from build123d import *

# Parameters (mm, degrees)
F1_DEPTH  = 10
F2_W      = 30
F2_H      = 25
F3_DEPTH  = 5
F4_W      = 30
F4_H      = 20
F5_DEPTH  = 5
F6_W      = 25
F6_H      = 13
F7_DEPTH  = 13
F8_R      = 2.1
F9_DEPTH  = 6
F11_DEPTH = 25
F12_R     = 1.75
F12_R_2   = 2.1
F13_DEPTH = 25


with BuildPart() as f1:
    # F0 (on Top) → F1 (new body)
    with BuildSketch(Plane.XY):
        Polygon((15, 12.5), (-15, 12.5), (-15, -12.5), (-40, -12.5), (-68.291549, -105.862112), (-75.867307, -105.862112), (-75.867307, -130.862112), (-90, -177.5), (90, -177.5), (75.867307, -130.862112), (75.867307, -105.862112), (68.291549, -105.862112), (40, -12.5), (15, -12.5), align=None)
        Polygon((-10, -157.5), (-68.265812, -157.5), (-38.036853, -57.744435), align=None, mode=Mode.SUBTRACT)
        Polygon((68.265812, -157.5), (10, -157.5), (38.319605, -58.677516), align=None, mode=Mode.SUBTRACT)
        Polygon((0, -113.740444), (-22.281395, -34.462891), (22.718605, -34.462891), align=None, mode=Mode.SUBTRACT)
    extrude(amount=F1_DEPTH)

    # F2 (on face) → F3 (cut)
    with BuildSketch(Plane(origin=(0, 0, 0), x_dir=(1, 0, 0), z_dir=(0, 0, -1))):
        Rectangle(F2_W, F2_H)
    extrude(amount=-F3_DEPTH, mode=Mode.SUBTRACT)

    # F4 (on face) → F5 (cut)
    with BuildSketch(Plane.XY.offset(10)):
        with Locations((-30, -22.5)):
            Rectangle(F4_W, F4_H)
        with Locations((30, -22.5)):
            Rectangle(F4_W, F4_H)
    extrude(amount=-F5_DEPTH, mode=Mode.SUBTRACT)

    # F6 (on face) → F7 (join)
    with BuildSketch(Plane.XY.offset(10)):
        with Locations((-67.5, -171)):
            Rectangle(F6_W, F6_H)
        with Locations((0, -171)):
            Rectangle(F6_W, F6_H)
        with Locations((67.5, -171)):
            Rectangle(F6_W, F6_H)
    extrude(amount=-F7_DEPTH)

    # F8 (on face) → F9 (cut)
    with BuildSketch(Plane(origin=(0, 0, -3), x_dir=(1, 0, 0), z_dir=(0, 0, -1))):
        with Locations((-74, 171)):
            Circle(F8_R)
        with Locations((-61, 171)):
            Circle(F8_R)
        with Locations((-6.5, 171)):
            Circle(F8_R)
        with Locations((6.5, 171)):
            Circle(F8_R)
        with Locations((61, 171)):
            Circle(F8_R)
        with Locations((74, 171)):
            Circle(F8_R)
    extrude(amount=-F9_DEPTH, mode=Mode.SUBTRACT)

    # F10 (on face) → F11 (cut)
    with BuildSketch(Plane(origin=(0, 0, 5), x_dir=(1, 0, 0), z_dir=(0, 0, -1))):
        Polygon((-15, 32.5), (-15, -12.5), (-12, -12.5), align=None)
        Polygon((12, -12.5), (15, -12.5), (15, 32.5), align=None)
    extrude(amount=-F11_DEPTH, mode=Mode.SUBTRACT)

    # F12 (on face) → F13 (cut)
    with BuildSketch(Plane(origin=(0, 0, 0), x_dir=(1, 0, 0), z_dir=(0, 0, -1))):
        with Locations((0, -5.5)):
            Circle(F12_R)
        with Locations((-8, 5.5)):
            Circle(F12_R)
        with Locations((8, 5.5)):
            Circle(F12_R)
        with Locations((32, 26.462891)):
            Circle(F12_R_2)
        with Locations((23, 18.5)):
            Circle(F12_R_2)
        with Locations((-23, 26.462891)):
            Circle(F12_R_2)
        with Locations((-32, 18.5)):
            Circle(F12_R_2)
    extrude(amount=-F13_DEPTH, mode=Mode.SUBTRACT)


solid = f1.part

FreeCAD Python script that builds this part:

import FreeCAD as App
import Part
import Sketcher

doc = App.newDocument("Part")
body = doc.addObject("PartDesign::Body", "Body")

sketch1 = body.newObject("Sketcher::SketchObject", "Sketch")
sketch1.AttachmentSupport = (doc.getObject("XY_Plane"), [""])
sketch1.MapMode = "FlatFace"
sketch1.addGeometry(Part.LineSegment(App.Vector(15, 12.5, 0), App.Vector(-15, 12.5, 0)), False)
sketch1.addGeometry(Part.LineSegment(App.Vector(-15, 12.5, 0), App.Vector(-15, -12.5, 0)), False)
sketch1.addGeometry(Part.LineSegment(App.Vector(-15, -12.5, 0), App.Vector(-40, -12.5, 0)), False)
sketch1.addGeometry(Part.LineSegment(App.Vector(-40, -12.5, 0), App.Vector(-68.291549, -105.862112, 0)), False)
sketch1.addGeometry(Part.LineSegment(App.Vector(-68.291549, -105.862112, 0), App.Vector(-75.867307, -105.862112, 0)), False)
sketch1.addGeometry(Part.LineSegment(App.Vector(-75.867307, -105.862112, 0), App.Vector(-75.867307, -130.862112, 0)), False)
sketch1.addGeometry(Part.LineSegment(App.Vector(-75.867307, -130.862112, 0), App.Vector(-90, -177.5, 0)), False)
sketch1.addGeometry(Part.LineSegment(App.Vector(-90, -177.5, 0), App.Vector(90, -177.5, 0)), False)
sketch1.addGeometry(Part.LineSegment(App.Vector(90, -177.5, 0), App.Vector(75.867307, -130.862112, 0)), False)
sketch1.addGeometry(Part.LineSegment(App.Vector(75.867307, -130.862112, 0), App.Vector(75.867307, -105.862112, 0)), False)
sketch1.addGeometry(Part.LineSegment(App.Vector(75.867307, -105.862112, 0), App.Vector(68.291549, -105.862112, 0)), False)
sketch1.addGeometry(Part.LineSegment(App.Vector(68.291549, -105.862112, 0), App.Vector(40, -12.5, 0)), False)
sketch1.addGeometry(Part.LineSegment(App.Vector(40, -12.5, 0), App.Vector(15, -12.5, 0)), False)
sketch1.addGeometry(Part.LineSegment(App.Vector(15, -12.5, 0), App.Vector(15, 12.5, 0)), False)
sketch1.addGeometry(Part.LineSegment(App.Vector(-38.036853, -57.744435, 0), App.Vector(-10, -157.5, 0)), False)
sketch1.addGeometry(Part.LineSegment(App.Vector(-10, -157.5, 0), App.Vector(-68.265812, -157.5, 0)), False)
sketch1.addGeometry(Part.LineSegment(App.Vector(-68.265812, -157.5, 0), App.Vector(-38.036853, -57.744435, 0)), False)
sketch1.addGeometry(Part.LineSegment(App.Vector(38.319605, -58.677516, 0), App.Vector(68.265812, -157.5, 0)), False)
sketch1.addGeometry(Part.LineSegment(App.Vector(68.265812, -157.5, 0), App.Vector(10, -157.5, 0)), False)
sketch1.addGeometry(Part.LineSegment(App.Vector(10, -157.5, 0), App.Vector(38.319605, -58.677516, 0)), False)
sketch1.addGeometry(Part.LineSegment(App.Vector(22.718605, -34.462891, 0), App.Vector(0, -113.740444, 0)), False)
sketch1.addGeometry(Part.LineSegment(App.Vector(0, -113.740444, 0), App.Vector(-22.281395, -34.462891, 0)), False)
sketch1.addGeometry(Part.LineSegment(App.Vector(-22.281395, -34.462891, 0), App.Vector(22.718605, -34.462891, 0)), False)
sketch1.addConstraint(Sketcher.Constraint("Coincident", 0, 2, 1, 1))
sketch1.addConstraint(Sketcher.Constraint("Coincident", 1, 2, 2, 1))
sketch1.addConstraint(Sketcher.Constraint("Coincident", 2, 2, 3, 1))
sketch1.addConstraint(Sketcher.Constraint("Coincident", 3, 2, 4, 1))
sketch1.addConstraint(Sketcher.Constraint("Coincident", 4, 2, 5, 1))
sketch1.addConstraint(Sketcher.Constraint("Coincident", 5, 2, 6, 1))
sketch1.addConstraint(Sketcher.Constraint("Coincident", 6, 2, 7, 1))
sketch1.addConstraint(Sketcher.Constraint("Coincident", 7, 2, 8, 1))
sketch1.addConstraint(Sketcher.Constraint("Coincident", 8, 2, 9, 1))
sketch1.addConstraint(Sketcher.Constraint("Coincident", 9, 2, 10, 1))
sketch1.addConstraint(Sketcher.Constraint("Coincident", 10, 2, 11, 1))
sketch1.addConstraint(Sketcher.Constraint("Coincident", 11, 2, 12, 1))
sketch1.addConstraint(Sketcher.Constraint("Coincident", 12, 2, 13, 1))
sketch1.addConstraint(Sketcher.Constraint("Coincident", 13, 2, 0, 1))
sketch1.addConstraint(Sketcher.Constraint("Coincident", 14, 2, 15, 1))
sketch1.addConstraint(Sketcher.Constraint("Coincident", 15, 2, 16, 1))
sketch1.addConstraint(Sketcher.Constraint("Coincident", 16, 2, 14, 1))
sketch1.addConstraint(Sketcher.Constraint("Coincident", 17, 2, 18, 1))
sketch1.addConstraint(Sketcher.Constraint("Coincident", 18, 2, 19, 1))
sketch1.addConstraint(Sketcher.Constraint("Coincident", 19, 2, 17, 1))
sketch1.addConstraint(Sketcher.Constraint("Coincident", 20, 2, 21, 1))
sketch1.addConstraint(Sketcher.Constraint("Coincident", 21, 2, 22, 1))
sketch1.addConstraint(Sketcher.Constraint("Coincident", 22, 2, 20, 1))
sketch1.addConstraint(Sketcher.Constraint("Horizontal", 0))
sketch1.addConstraint(Sketcher.Constraint("Vertical", 1))
sketch1.addConstraint(Sketcher.Constraint("Horizontal", 2))
sketch1.addConstraint(Sketcher.Constraint("Horizontal", 4))
sketch1.addConstraint(Sketcher.Constraint("Vertical", 5))
sketch1.addConstraint(Sketcher.Constraint("Horizontal", 7))
sketch1.addConstraint(Sketcher.Constraint("Vertical", 9))
sketch1.addConstraint(Sketcher.Constraint("Horizontal", 10))
sketch1.addConstraint(Sketcher.Constraint("Horizontal", 12))
sketch1.addConstraint(Sketcher.Constraint("Vertical", 13))
sketch1.addConstraint(Sketcher.Constraint("Horizontal", 15))
sketch1.addConstraint(Sketcher.Constraint("Horizontal", 18))
sketch1.addConstraint(Sketcher.Constraint("Horizontal", 22))
sketch1.addConstraint(Sketcher.Constraint("Symmetric", 0, 2, 12, 2, -1, 1))
sketch1.addConstraint(Sketcher.Constraint("Symmetric", 5, 2, 8, 2, -2))
sketch1.addConstraint(Sketcher.Constraint("Symmetric", 3, 2, 10, 2, -2))
sketch1.addConstraint(Sketcher.Constraint("Symmetric", 2, 2, 11, 2, -2))
sketch1.addConstraint(Sketcher.Constraint("Symmetric", 15, 2, 17, 2, -2))
sketch1.addConstraint(Sketcher.Constraint("PointOnObject", 20, 2, -2))
sketch1.addConstraint(Sketcher.Constraint("Parallel", 3, 6))
sketch1.addConstraint(Sketcher.Constraint("Parallel", 8, 11))
sketch1.addConstraint(Sketcher.Constraint("Parallel", 6, 16))
sketch1.addConstraint(Sketcher.Constraint("Parallel", 11, 17))
sketch1.addConstraint(Sketcher.Constraint("Parallel", 19, 20))
sketch1.addConstraint(Sketcher.Constraint("Parallel", 14, 21))
sketch1.addConstraint(Sketcher.Constraint("Equal", 15, 18))
sketch1.addConstraint(Sketcher.Constraint("Equal", 12, 1))
sketch1.addConstraint(Sketcher.Constraint("Equal", 1, 5))
sketch1.addConstraint(Sketcher.Constraint("DistanceX", 0, 2, 0, 1, 30.0))
sketch1.addConstraint(Sketcher.Constraint("DistanceX", 2, 2, 2, 1, 25.0))
sketch1.addConstraint(Sketcher.Constraint("DistanceX", 7, 1, 7, 2, 180.0))
sketch1.addConstraint(Sketcher.Constraint("DistanceX", 22, 1, 22, 2, 45.0))
sketch1.addConstraint(Sketcher.Constraint("DistanceX", 14, 2, -1, 1, 10.0))
sketch1.addConstraint(Sketcher.Constraint("DistanceY", 6, 2, 2, 2, 165.0))
sketch1.addConstraint(Sketcher.Constraint("DistanceY", 6, 2, 14, 2, 20.0))
sketch1.addConstraint(Sketcher.Constraint("DistanceX", 22, 2, 19, 2, 15.601))
sketch1.addConstraint(Sketcher.Constraint("Distance", 21, 82.349201))
sketch1.addConstraint(Sketcher.Constraint("DistanceX", 15, 2, 15, 1, 58.265812))
sketch1.addConstraint(Sketcher.Constraint("DistanceX", 3, 2, 10, 2, 136.583098))
sketch1.addConstraint(Sketcher.Constraint("DistanceX", 19, 2, 9, 2, 37.547702))
sketch1.addConstraint(Sketcher.Constraint("DistanceY", 21, 2, -1, 1, 34.462891))
pad1 = body.newObject("PartDesign::Pad", "Pad")
pad1.Profile = sketch1
pad1.Length = 10

sketch2 = body.newObject("Sketcher::SketchObject", "Sketch001")
sketch2.AttachmentSupport = (doc.getObject("XY_Plane"), [""])
sketch2.MapMode = "FlatFace"
sketch2.addGeometry(Part.LineSegment(App.Vector(-15, -12.5, 0), App.Vector(-15, 12.5, 0)), False)
sketch2.addGeometry(Part.LineSegment(App.Vector(-15, 12.5, 0), App.Vector(15, 12.5, 0)), False)
sketch2.addGeometry(Part.LineSegment(App.Vector(15, 12.5, 0), App.Vector(15, -12.5, 0)), False)
sketch2.addGeometry(Part.LineSegment(App.Vector(15, -12.5, 0), App.Vector(-15, -12.5, 0)), False)
sketch2.addConstraint(Sketcher.Constraint("Coincident", 0, 2, 1, 1))
sketch2.addConstraint(Sketcher.Constraint("Coincident", 1, 2, 2, 1))
sketch2.addConstraint(Sketcher.Constraint("Coincident", 2, 2, 3, 1))
sketch2.addConstraint(Sketcher.Constraint("Coincident", 3, 2, 0, 1))
sketch2.addConstraint(Sketcher.Constraint("Vertical", 0))
sketch2.addConstraint(Sketcher.Constraint("Horizontal", 1))
sketch2.addConstraint(Sketcher.Constraint("Vertical", 2))
sketch2.addConstraint(Sketcher.Constraint("Horizontal", 3))
sketch2.addConstraint(Sketcher.Constraint("Symmetric", 0, 2, 2, 2, -1, 1))
sketch2.addConstraint(Sketcher.Constraint("DistanceX", 1, 1, 1, 2, 30.0))
sketch2.addConstraint(Sketcher.Constraint("DistanceY", 0, 1, 0, 2, 25.0))
pocket1 = body.newObject("PartDesign::Pocket", "Pocket")
pocket1.Profile = sketch2
pocket1.Length = 5
pocket1.Reversed = True

sketch3 = body.newObject("Sketcher::SketchObject", "Sketch002")
sketch3.AttachmentSupport = (doc.getObject("XY_Plane"), [""])
sketch3.MapMode = "FlatFace"
sketch3.AttachmentOffset = App.Placement(App.Vector(0, 0, 10), App.Rotation())
sketch3.addGeometry(Part.LineSegment(App.Vector(-45, -12.5, 0), App.Vector(-45, -32.5, 0)), False)
sketch3.addGeometry(Part.LineSegment(App.Vector(-45, -32.5, 0), App.Vector(-15, -32.5, 0)), False)
sketch3.addGeometry(Part.LineSegment(App.Vector(-15, -32.5, 0), App.Vector(-15, -12.5, 0)), False)
sketch3.addGeometry(Part.LineSegment(App.Vector(-15, -12.5, 0), App.Vector(-45, -12.5, 0)), False)
sketch3.addGeometry(Part.LineSegment(App.Vector(15, -12.5, 0), App.Vector(15, -32.5, 0)), False)
sketch3.addGeometry(Part.LineSegment(App.Vector(15, -32.5, 0), App.Vector(45, -32.5, 0)), False)
sketch3.addGeometry(Part.LineSegment(App.Vector(45, -32.5, 0), App.Vector(45, -12.5, 0)), False)
sketch3.addGeometry(Part.LineSegment(App.Vector(45, -12.5, 0), App.Vector(15, -12.5, 0)), False)
sketch3.addConstraint(Sketcher.Constraint("Coincident", 0, 2, 1, 1))
sketch3.addConstraint(Sketcher.Constraint("Coincident", 1, 2, 2, 1))
sketch3.addConstraint(Sketcher.Constraint("Coincident", 2, 2, 3, 1))
sketch3.addConstraint(Sketcher.Constraint("Coincident", 3, 2, 0, 1))
sketch3.addConstraint(Sketcher.Constraint("Coincident", 4, 2, 5, 1))
sketch3.addConstraint(Sketcher.Constraint("Coincident", 5, 2, 6, 1))
sketch3.addConstraint(Sketcher.Constraint("Coincident", 6, 2, 7, 1))
sketch3.addConstraint(Sketcher.Constraint("Coincident", 7, 2, 4, 1))
sketch3.addConstraint(Sketcher.Constraint("Vertical", 0))
sketch3.addConstraint(Sketcher.Constraint("Horizontal", 1))
sketch3.addConstraint(Sketcher.Constraint("Vertical", 2))
sketch3.addConstraint(Sketcher.Constraint("Horizontal", 3))
sketch3.addConstraint(Sketcher.Constraint("Vertical", 4))
sketch3.addConstraint(Sketcher.Constraint("Horizontal", 5))
sketch3.addConstraint(Sketcher.Constraint("Vertical", 6))
sketch3.addConstraint(Sketcher.Constraint("Horizontal", 7))
sketch3.addConstraint(Sketcher.Constraint("Symmetric", 1, 2, 4, 2, -2))
sketch3.addConstraint(Sketcher.Constraint("Symmetric", 3, 2, 6, 2, -2))
sketch3.addConstraint(Sketcher.Constraint("DistanceX", 1, 1, 1, 2, 30.0))
sketch3.addConstraint(Sketcher.Constraint("DistanceY", 0, 2, 0, 1, 20.0))
sketch3.addConstraint(Sketcher.Constraint("DistanceX", 0, 2, -1, 1, 45.0))
sketch3.addConstraint(Sketcher.Constraint("DistanceY", 0, 2, -1, 1, 32.5))
pocket2 = body.newObject("PartDesign::Pocket", "Pocket001")
pocket2.Profile = sketch3
pocket2.Length = 5

sketch4 = body.newObject("Sketcher::SketchObject", "Sketch003")
sketch4.AttachmentSupport = (doc.getObject("XY_Plane"), [""])
sketch4.MapMode = "FlatFace"
sketch4.AttachmentOffset = App.Placement(App.Vector(0, 0, 10), App.Rotation())
sketch4.addGeometry(Part.LineSegment(App.Vector(-80, -164.5, 0), App.Vector(-80, -177.5, 0)), False)
sketch4.addGeometry(Part.LineSegment(App.Vector(-80, -177.5, 0), App.Vector(-55, -177.5, 0)), False)
sketch4.addGeometry(Part.LineSegment(App.Vector(-55, -177.5, 0), App.Vector(-55, -164.5, 0)), False)
sketch4.addGeometry(Part.LineSegment(App.Vector(-55, -164.5, 0), App.Vector(-80, -164.5, 0)), False)
sketch4.addGeometry(Part.LineSegment(App.Vector(-12.5, -164.5, 0), App.Vector(-12.5, -177.5, 0)), False)
sketch4.addGeometry(Part.LineSegment(App.Vector(-12.5, -177.5, 0), App.Vector(12.5, -177.5, 0)), False)
sketch4.addGeometry(Part.LineSegment(App.Vector(12.5, -177.5, 0), App.Vector(12.5, -164.5, 0)), False)
sketch4.addGeometry(Part.LineSegment(App.Vector(12.5, -164.5, 0), App.Vector(-12.5, -164.5, 0)), False)
sketch4.addGeometry(Part.LineSegment(App.Vector(55, -164.5, 0), App.Vector(55, -177.5, 0)), False)
sketch4.addGeometry(Part.LineSegment(App.Vector(55, -177.5, 0), App.Vector(80, -177.5, 0)), False)
sketch4.addGeometry(Part.LineSegment(App.Vector(80, -177.5, 0), App.Vector(80, -164.5, 0)), False)
sketch4.addGeometry(Part.LineSegment(App.Vector(80, -164.5, 0), App.Vector(55, -164.5, 0)), False)
sketch4.addConstraint(Sketcher.Constraint("Coincident", 0, 2, 1, 1))
sketch4.addConstraint(Sketcher.Constraint("Coincident", 1, 2, 2, 1))
sketch4.addConstraint(Sketcher.Constraint("Coincident", 2, 2, 3, 1))
sketch4.addConstraint(Sketcher.Constraint("Coincident", 3, 2, 0, 1))
sketch4.addConstraint(Sketcher.Constraint("Coincident", 4, 2, 5, 1))
sketch4.addConstraint(Sketcher.Constraint("Coincident", 5, 2, 6, 1))
sketch4.addConstraint(Sketcher.Constraint("Coincident", 6, 2, 7, 1))
sketch4.addConstraint(Sketcher.Constraint("Coincident", 7, 2, 4, 1))
sketch4.addConstraint(Sketcher.Constraint("Coincident", 8, 2, 9, 1))
sketch4.addConstraint(Sketcher.Constraint("Coincident", 9, 2, 10, 1))
sketch4.addConstraint(Sketcher.Constraint("Coincident", 10, 2, 11, 1))
sketch4.addConstraint(Sketcher.Constraint("Coincident", 11, 2, 8, 1))
sketch4.addConstraint(Sketcher.Constraint("Vertical", 0))
sketch4.addConstraint(Sketcher.Constraint("Horizontal", 1))
sketch4.addConstraint(Sketcher.Constraint("Vertical", 2))
sketch4.addConstraint(Sketcher.Constraint("Horizontal", 3))
sketch4.addConstraint(Sketcher.Constraint("Vertical", 4))
sketch4.addConstraint(Sketcher.Constraint("Horizontal", 5))
sketch4.addConstraint(Sketcher.Constraint("Vertical", 6))
sketch4.addConstraint(Sketcher.Constraint("Horizontal", 7))
sketch4.addConstraint(Sketcher.Constraint("Vertical", 8))
sketch4.addConstraint(Sketcher.Constraint("Horizontal", 9))
sketch4.addConstraint(Sketcher.Constraint("Vertical", 10))
sketch4.addConstraint(Sketcher.Constraint("Horizontal", 11))
sketch4.addConstraint(Sketcher.Constraint("Symmetric", 1, 2, 8, 2, -2))
sketch4.addConstraint(Sketcher.Constraint("Symmetric", 3, 2, 10, 2, -2))
sketch4.addConstraint(Sketcher.Constraint("Horizontal", 1, 2, 4, 2))
sketch4.addConstraint(Sketcher.Constraint("Horizontal", 3, 2, 6, 2))
sketch4.addConstraint(Sketcher.Constraint("Equal", 3, 5))
sketch4.addConstraint(Sketcher.Constraint("DistanceX", 1, 1, 1, 2, 25.0))
sketch4.addConstraint(Sketcher.Constraint("DistanceY", 0, 2, 0, 1, 13.0))
sketch4.addConstraint(Sketcher.Constraint("DistanceX", 0, 2, -1, 1, 80.0))
sketch4.addConstraint(Sketcher.Constraint("DistanceY", 0, 2, -1, 1, 177.5))
sketch4.addConstraint(Sketcher.Constraint("DistanceX", 4, 2, -1, 1, 12.5))
pad2 = body.newObject("PartDesign::Pad", "Pad001")
pad2.Profile = sketch4
pad2.Length = 13
pad2.Reversed = True

sketch5 = body.newObject("Sketcher::SketchObject", "Sketch004")
sketch5.AttachmentSupport = (doc.getObject("XY_Plane"), [""])
sketch5.MapMode = "FlatFace"
sketch5.AttachmentOffset = App.Placement(App.Vector(0, 0, -3), App.Rotation())
sketch5.addGeometry(Part.Circle(App.Vector(-74, -171, 0), App.Vector(0, 0, 1), 2.1), False)
sketch5.addGeometry(Part.Circle(App.Vector(-61, -171, 0), App.Vector(0, 0, 1), 2.1), False)
sketch5.addGeometry(Part.Circle(App.Vector(-6.5, -171, 0), App.Vector(0, 0, 1), 2.1), False)
sketch5.addGeometry(Part.Circle(App.Vector(6.5, -171, 0), App.Vector(0, 0, 1), 2.1), False)
sketch5.addGeometry(Part.Circle(App.Vector(61, -171, 0), App.Vector(0, 0, 1), 2.1), False)
sketch5.addGeometry(Part.Circle(App.Vector(74, -171, 0), App.Vector(0, 0, 1), 2.1), False)
sketch5.addConstraint(Sketcher.Constraint("Equal", 0, 1))
sketch5.addConstraint(Sketcher.Constraint("Equal", 1, 2))
sketch5.addConstraint(Sketcher.Constraint("Equal", 2, 3))
sketch5.addConstraint(Sketcher.Constraint("Equal", 3, 4))
sketch5.addConstraint(Sketcher.Constraint("Equal", 4, 5))
sketch5.addConstraint(Sketcher.Constraint("Symmetric", 2, 3, 3, 3, -2))
sketch5.addConstraint(Sketcher.Constraint("Symmetric", 1, 3, 4, 3, -2))
sketch5.addConstraint(Sketcher.Constraint("Symmetric", 0, 3, 5, 3, -2))
sketch5.addConstraint(Sketcher.Constraint("Horizontal", 0, 3, 1, 3))
sketch5.addConstraint(Sketcher.Constraint("Horizontal", 1, 3, 2, 3))
sketch5.addConstraint(Sketcher.Constraint("Diameter", 0, 4.2))
sketch5.addConstraint(Sketcher.Constraint("DistanceX", 0, 3, -1, 1, 74.0))
sketch5.addConstraint(Sketcher.Constraint("DistanceY", 0, 3, -1, 1, 171.0))
sketch5.addConstraint(Sketcher.Constraint("DistanceX", 1, 3, -1, 1, 61.0))
sketch5.addConstraint(Sketcher.Constraint("DistanceX", 2, 3, 3, 3, 13.0))
pocket3 = body.newObject("PartDesign::Pocket", "Pocket002")
pocket3.Profile = sketch5
pocket3.Length = 6
pocket3.Reversed = True

sketch6 = body.newObject("Sketcher::SketchObject", "Sketch005")
sketch6.AttachmentSupport = (doc.getObject("XY_Plane"), [""])
sketch6.MapMode = "FlatFace"
sketch6.AttachmentOffset = App.Placement(App.Vector(0, 0, 5), App.Rotation())
sketch6.addGeometry(Part.LineSegment(App.Vector(-15, -32.5, 0), App.Vector(-15, 12.5, 0)), False)
sketch6.addGeometry(Part.LineSegment(App.Vector(-15, 12.5, 0), App.Vector(-12, 12.5, 0)), False)
sketch6.addGeometry(Part.LineSegment(App.Vector(-12, 12.5, 0), App.Vector(-15, -32.5, 0)), False)
sketch6.addGeometry(Part.LineSegment(App.Vector(12, 12.5, 0), App.Vector(15, 12.5, 0)), False)
sketch6.addGeometry(Part.LineSegment(App.Vector(15, 12.5, 0), App.Vector(15, -32.5, 0)), False)
sketch6.addGeometry(Part.LineSegment(App.Vector(15, -32.5, 0), App.Vector(12, 12.5, 0)), False)
sketch6.addConstraint(Sketcher.Constraint("Coincident", 0, 2, 1, 1))
sketch6.addConstraint(Sketcher.Constraint("Coincident", 1, 2, 2, 1))
sketch6.addConstraint(Sketcher.Constraint("Coincident", 2, 2, 0, 1))
sketch6.addConstraint(Sketcher.Constraint("Coincident", 3, 2, 4, 1))
sketch6.addConstraint(Sketcher.Constraint("Coincident", 4, 2, 5, 1))
sketch6.addConstraint(Sketcher.Constraint("Coincident", 5, 2, 3, 1))
sketch6.addConstraint(Sketcher.Constraint("Vertical", 0))
sketch6.addConstraint(Sketcher.Constraint("Horizontal", 1))
sketch6.addConstraint(Sketcher.Constraint("Horizontal", 3))
sketch6.addConstraint(Sketcher.Constraint("Vertical", 4))
sketch6.addConstraint(Sketcher.Constraint("Symmetric", 0, 2, 3, 2, -2))
sketch6.addConstraint(Sketcher.Constraint("Horizontal", 2, 2, 4, 2))
sketch6.addConstraint(Sketcher.Constraint("Equal", 1, 3))
sketch6.addConstraint(Sketcher.Constraint("DistanceX", 1, 1, 1, 2, 3.0))
sketch6.addConstraint(Sketcher.Constraint("DistanceY", 0, 1, 0, 2, 45.0))
sketch6.addConstraint(Sketcher.Constraint("DistanceX", 0, 2, -1, 1, 15.0))
sketch6.addConstraint(Sketcher.Constraint("DistanceY", -1, 1, 0, 2, 12.5))
pocket4 = body.newObject("PartDesign::Pocket", "Pocket003")
pocket4.Profile = sketch6
pocket4.Length = 25
pocket4.Reversed = True

sketch7 = body.newObject("Sketcher::SketchObject", "Sketch006")
sketch7.AttachmentSupport = (doc.getObject("XY_Plane"), [""])
sketch7.MapMode = "FlatFace"
sketch7.addGeometry(Part.Circle(App.Vector(0, 5.5, 0), App.Vector(0, 0, 1), 1.75), False)
sketch7.addGeometry(Part.Circle(App.Vector(-8, -5.5, 0), App.Vector(0, 0, 1), 1.75), False)
sketch7.addGeometry(Part.Circle(App.Vector(8, -5.5, 0), App.Vector(0, 0, 1), 1.75), False)
sketch7.addGeometry(Part.Circle(App.Vector(32, -26.462891, 0), App.Vector(0, 0, 1), 2.1), False)
sketch7.addGeometry(Part.Circle(App.Vector(23, -18.5, 0), App.Vector(0, 0, 1), 2.1), False)
sketch7.addGeometry(Part.Circle(App.Vector(-23, -26.462891, 0), App.Vector(0, 0, 1), 2.1), False)
sketch7.addGeometry(Part.Circle(App.Vector(-32, -18.5, 0), App.Vector(0, 0, 1), 2.1), False)
sketch7.addConstraint(Sketcher.Constraint("Equal", 0, 1))
sketch7.addConstraint(Sketcher.Constraint("Equal", 1, 2))
sketch7.addConstraint(Sketcher.Constraint("Equal", 3, 4))
sketch7.addConstraint(Sketcher.Constraint("Equal", 4, 5))
sketch7.addConstraint(Sketcher.Constraint("Equal", 5, 6))
sketch7.addConstraint(Sketcher.Constraint("Symmetric", 1, 3, 2, 3, -2))
sketch7.addConstraint(Sketcher.Constraint("PointOnObject", 0, 3, -2))
sketch7.addConstraint(Sketcher.Constraint("Horizontal", 3, 3, 5, 3))
sketch7.addConstraint(Sketcher.Constraint("Horizontal", 4, 3, 6, 3))
sketch7.addConstraint(Sketcher.Constraint("Diameter", 0, 3.5))
sketch7.addConstraint(Sketcher.Constraint("Diameter", 3, 4.2))
sketch7.addConstraint(Sketcher.Constraint("DistanceX", 1, 3, -1, 1, 8.0))
sketch7.addConstraint(Sketcher.Constraint("DistanceX", -1, 1, 3, 3, 32.0))
sketch7.addConstraint(Sketcher.Constraint("DistanceX", -1, 1, 4, 3, 23.0))
sketch7.addConstraint(Sketcher.Constraint("DistanceX", 5, 3, -1, 1, 23.0))
sketch7.addConstraint(Sketcher.Constraint("DistanceX", 6, 3, -1, 1, 32.0))
sketch7.addConstraint(Sketcher.Constraint("DistanceY", 1, 3, 0, 3, 11.0))
sketch7.addConstraint(Sketcher.Constraint("DistanceY", 4, 3, 2, 3, 13.0))
sketch7.addConstraint(Sketcher.Constraint("DistanceY", -1, 1, 0, 3, 5.5))
sketch7.addConstraint(Sketcher.Constraint("DistanceY", 3, 3, -1, 1, 26.462891))
pocket5 = body.newObject("PartDesign::Pocket", "Pocket004")
pocket5.Profile = sketch7
pocket5.Length = 25
pocket5.Reversed = True

doc.recompute()
